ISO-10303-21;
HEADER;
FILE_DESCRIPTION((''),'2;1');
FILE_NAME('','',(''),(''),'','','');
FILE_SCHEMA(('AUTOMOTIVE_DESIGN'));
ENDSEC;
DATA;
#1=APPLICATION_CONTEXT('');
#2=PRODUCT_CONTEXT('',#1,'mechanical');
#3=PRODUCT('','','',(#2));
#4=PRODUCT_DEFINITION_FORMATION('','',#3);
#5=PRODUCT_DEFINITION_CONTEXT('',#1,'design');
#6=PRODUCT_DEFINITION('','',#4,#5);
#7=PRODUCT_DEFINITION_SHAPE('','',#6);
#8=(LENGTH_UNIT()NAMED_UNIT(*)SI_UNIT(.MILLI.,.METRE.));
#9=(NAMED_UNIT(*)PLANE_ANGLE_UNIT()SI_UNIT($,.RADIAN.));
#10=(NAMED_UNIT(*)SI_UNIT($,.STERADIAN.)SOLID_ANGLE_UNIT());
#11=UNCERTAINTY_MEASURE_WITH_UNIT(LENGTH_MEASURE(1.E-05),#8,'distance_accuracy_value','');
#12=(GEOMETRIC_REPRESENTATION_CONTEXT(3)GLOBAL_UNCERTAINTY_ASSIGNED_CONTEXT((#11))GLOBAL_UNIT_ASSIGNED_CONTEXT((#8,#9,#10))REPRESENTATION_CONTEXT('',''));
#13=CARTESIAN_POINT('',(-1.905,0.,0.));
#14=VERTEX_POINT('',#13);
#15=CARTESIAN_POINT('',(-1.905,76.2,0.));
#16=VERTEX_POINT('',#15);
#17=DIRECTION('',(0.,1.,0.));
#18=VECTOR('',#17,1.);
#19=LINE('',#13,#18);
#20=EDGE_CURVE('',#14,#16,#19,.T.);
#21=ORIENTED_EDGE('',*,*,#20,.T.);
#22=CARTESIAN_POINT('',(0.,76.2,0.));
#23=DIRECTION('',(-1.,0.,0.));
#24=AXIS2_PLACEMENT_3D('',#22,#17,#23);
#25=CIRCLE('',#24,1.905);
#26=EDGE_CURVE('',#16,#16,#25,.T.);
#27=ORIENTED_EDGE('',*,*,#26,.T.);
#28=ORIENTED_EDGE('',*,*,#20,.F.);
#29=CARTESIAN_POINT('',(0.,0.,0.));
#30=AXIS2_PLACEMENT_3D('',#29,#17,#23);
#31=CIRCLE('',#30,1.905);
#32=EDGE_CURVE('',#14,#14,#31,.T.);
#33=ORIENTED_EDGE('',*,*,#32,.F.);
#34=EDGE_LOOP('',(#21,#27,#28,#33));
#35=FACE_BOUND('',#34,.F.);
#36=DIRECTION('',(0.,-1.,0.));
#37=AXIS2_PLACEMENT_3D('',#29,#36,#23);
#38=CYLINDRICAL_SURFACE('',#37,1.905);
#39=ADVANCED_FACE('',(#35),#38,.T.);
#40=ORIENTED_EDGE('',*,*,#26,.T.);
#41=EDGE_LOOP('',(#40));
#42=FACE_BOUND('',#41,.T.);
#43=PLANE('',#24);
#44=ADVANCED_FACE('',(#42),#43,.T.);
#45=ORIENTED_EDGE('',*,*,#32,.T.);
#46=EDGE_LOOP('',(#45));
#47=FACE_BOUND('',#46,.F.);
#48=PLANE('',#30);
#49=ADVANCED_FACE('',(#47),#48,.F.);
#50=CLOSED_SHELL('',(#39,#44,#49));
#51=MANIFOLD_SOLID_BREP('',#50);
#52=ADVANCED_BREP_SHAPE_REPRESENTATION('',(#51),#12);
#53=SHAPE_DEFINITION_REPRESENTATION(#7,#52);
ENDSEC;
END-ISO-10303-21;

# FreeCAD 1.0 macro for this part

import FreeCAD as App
import Part
import Sketcher
from FreeCAD import Vector
Q = App.Units.Quantity

doc = App.newDocument("Part")
body = doc.addObject("PartDesign::Body", "Body")

# Sketch on XZ plane
sketch1 = body.newObject("Sketcher::SketchObject", "Sketch")
sketch1.AttachmentSupport = (doc.getObject("XZ_Plane"), [""])
sketch1.MapMode = "FlatFace"
sketch1.addGeometry(Part.Circle(Vector(0, 0, 0), Vector(0, 0, 1), 1.905), False)
sketch1.addConstraint([
    Sketcher.Constraint("Coincident", 0, 3, -1, 1),
    Sketcher.Constraint("Diameter", 0, Q("0.15 in")),
])
pad1 = body.newObject("PartDesign::Pad", "Pad")
pad1.Profile = sketch1
pad1.Length = Q("3 in")
pad1.Reversed = True

doc.recompute()
